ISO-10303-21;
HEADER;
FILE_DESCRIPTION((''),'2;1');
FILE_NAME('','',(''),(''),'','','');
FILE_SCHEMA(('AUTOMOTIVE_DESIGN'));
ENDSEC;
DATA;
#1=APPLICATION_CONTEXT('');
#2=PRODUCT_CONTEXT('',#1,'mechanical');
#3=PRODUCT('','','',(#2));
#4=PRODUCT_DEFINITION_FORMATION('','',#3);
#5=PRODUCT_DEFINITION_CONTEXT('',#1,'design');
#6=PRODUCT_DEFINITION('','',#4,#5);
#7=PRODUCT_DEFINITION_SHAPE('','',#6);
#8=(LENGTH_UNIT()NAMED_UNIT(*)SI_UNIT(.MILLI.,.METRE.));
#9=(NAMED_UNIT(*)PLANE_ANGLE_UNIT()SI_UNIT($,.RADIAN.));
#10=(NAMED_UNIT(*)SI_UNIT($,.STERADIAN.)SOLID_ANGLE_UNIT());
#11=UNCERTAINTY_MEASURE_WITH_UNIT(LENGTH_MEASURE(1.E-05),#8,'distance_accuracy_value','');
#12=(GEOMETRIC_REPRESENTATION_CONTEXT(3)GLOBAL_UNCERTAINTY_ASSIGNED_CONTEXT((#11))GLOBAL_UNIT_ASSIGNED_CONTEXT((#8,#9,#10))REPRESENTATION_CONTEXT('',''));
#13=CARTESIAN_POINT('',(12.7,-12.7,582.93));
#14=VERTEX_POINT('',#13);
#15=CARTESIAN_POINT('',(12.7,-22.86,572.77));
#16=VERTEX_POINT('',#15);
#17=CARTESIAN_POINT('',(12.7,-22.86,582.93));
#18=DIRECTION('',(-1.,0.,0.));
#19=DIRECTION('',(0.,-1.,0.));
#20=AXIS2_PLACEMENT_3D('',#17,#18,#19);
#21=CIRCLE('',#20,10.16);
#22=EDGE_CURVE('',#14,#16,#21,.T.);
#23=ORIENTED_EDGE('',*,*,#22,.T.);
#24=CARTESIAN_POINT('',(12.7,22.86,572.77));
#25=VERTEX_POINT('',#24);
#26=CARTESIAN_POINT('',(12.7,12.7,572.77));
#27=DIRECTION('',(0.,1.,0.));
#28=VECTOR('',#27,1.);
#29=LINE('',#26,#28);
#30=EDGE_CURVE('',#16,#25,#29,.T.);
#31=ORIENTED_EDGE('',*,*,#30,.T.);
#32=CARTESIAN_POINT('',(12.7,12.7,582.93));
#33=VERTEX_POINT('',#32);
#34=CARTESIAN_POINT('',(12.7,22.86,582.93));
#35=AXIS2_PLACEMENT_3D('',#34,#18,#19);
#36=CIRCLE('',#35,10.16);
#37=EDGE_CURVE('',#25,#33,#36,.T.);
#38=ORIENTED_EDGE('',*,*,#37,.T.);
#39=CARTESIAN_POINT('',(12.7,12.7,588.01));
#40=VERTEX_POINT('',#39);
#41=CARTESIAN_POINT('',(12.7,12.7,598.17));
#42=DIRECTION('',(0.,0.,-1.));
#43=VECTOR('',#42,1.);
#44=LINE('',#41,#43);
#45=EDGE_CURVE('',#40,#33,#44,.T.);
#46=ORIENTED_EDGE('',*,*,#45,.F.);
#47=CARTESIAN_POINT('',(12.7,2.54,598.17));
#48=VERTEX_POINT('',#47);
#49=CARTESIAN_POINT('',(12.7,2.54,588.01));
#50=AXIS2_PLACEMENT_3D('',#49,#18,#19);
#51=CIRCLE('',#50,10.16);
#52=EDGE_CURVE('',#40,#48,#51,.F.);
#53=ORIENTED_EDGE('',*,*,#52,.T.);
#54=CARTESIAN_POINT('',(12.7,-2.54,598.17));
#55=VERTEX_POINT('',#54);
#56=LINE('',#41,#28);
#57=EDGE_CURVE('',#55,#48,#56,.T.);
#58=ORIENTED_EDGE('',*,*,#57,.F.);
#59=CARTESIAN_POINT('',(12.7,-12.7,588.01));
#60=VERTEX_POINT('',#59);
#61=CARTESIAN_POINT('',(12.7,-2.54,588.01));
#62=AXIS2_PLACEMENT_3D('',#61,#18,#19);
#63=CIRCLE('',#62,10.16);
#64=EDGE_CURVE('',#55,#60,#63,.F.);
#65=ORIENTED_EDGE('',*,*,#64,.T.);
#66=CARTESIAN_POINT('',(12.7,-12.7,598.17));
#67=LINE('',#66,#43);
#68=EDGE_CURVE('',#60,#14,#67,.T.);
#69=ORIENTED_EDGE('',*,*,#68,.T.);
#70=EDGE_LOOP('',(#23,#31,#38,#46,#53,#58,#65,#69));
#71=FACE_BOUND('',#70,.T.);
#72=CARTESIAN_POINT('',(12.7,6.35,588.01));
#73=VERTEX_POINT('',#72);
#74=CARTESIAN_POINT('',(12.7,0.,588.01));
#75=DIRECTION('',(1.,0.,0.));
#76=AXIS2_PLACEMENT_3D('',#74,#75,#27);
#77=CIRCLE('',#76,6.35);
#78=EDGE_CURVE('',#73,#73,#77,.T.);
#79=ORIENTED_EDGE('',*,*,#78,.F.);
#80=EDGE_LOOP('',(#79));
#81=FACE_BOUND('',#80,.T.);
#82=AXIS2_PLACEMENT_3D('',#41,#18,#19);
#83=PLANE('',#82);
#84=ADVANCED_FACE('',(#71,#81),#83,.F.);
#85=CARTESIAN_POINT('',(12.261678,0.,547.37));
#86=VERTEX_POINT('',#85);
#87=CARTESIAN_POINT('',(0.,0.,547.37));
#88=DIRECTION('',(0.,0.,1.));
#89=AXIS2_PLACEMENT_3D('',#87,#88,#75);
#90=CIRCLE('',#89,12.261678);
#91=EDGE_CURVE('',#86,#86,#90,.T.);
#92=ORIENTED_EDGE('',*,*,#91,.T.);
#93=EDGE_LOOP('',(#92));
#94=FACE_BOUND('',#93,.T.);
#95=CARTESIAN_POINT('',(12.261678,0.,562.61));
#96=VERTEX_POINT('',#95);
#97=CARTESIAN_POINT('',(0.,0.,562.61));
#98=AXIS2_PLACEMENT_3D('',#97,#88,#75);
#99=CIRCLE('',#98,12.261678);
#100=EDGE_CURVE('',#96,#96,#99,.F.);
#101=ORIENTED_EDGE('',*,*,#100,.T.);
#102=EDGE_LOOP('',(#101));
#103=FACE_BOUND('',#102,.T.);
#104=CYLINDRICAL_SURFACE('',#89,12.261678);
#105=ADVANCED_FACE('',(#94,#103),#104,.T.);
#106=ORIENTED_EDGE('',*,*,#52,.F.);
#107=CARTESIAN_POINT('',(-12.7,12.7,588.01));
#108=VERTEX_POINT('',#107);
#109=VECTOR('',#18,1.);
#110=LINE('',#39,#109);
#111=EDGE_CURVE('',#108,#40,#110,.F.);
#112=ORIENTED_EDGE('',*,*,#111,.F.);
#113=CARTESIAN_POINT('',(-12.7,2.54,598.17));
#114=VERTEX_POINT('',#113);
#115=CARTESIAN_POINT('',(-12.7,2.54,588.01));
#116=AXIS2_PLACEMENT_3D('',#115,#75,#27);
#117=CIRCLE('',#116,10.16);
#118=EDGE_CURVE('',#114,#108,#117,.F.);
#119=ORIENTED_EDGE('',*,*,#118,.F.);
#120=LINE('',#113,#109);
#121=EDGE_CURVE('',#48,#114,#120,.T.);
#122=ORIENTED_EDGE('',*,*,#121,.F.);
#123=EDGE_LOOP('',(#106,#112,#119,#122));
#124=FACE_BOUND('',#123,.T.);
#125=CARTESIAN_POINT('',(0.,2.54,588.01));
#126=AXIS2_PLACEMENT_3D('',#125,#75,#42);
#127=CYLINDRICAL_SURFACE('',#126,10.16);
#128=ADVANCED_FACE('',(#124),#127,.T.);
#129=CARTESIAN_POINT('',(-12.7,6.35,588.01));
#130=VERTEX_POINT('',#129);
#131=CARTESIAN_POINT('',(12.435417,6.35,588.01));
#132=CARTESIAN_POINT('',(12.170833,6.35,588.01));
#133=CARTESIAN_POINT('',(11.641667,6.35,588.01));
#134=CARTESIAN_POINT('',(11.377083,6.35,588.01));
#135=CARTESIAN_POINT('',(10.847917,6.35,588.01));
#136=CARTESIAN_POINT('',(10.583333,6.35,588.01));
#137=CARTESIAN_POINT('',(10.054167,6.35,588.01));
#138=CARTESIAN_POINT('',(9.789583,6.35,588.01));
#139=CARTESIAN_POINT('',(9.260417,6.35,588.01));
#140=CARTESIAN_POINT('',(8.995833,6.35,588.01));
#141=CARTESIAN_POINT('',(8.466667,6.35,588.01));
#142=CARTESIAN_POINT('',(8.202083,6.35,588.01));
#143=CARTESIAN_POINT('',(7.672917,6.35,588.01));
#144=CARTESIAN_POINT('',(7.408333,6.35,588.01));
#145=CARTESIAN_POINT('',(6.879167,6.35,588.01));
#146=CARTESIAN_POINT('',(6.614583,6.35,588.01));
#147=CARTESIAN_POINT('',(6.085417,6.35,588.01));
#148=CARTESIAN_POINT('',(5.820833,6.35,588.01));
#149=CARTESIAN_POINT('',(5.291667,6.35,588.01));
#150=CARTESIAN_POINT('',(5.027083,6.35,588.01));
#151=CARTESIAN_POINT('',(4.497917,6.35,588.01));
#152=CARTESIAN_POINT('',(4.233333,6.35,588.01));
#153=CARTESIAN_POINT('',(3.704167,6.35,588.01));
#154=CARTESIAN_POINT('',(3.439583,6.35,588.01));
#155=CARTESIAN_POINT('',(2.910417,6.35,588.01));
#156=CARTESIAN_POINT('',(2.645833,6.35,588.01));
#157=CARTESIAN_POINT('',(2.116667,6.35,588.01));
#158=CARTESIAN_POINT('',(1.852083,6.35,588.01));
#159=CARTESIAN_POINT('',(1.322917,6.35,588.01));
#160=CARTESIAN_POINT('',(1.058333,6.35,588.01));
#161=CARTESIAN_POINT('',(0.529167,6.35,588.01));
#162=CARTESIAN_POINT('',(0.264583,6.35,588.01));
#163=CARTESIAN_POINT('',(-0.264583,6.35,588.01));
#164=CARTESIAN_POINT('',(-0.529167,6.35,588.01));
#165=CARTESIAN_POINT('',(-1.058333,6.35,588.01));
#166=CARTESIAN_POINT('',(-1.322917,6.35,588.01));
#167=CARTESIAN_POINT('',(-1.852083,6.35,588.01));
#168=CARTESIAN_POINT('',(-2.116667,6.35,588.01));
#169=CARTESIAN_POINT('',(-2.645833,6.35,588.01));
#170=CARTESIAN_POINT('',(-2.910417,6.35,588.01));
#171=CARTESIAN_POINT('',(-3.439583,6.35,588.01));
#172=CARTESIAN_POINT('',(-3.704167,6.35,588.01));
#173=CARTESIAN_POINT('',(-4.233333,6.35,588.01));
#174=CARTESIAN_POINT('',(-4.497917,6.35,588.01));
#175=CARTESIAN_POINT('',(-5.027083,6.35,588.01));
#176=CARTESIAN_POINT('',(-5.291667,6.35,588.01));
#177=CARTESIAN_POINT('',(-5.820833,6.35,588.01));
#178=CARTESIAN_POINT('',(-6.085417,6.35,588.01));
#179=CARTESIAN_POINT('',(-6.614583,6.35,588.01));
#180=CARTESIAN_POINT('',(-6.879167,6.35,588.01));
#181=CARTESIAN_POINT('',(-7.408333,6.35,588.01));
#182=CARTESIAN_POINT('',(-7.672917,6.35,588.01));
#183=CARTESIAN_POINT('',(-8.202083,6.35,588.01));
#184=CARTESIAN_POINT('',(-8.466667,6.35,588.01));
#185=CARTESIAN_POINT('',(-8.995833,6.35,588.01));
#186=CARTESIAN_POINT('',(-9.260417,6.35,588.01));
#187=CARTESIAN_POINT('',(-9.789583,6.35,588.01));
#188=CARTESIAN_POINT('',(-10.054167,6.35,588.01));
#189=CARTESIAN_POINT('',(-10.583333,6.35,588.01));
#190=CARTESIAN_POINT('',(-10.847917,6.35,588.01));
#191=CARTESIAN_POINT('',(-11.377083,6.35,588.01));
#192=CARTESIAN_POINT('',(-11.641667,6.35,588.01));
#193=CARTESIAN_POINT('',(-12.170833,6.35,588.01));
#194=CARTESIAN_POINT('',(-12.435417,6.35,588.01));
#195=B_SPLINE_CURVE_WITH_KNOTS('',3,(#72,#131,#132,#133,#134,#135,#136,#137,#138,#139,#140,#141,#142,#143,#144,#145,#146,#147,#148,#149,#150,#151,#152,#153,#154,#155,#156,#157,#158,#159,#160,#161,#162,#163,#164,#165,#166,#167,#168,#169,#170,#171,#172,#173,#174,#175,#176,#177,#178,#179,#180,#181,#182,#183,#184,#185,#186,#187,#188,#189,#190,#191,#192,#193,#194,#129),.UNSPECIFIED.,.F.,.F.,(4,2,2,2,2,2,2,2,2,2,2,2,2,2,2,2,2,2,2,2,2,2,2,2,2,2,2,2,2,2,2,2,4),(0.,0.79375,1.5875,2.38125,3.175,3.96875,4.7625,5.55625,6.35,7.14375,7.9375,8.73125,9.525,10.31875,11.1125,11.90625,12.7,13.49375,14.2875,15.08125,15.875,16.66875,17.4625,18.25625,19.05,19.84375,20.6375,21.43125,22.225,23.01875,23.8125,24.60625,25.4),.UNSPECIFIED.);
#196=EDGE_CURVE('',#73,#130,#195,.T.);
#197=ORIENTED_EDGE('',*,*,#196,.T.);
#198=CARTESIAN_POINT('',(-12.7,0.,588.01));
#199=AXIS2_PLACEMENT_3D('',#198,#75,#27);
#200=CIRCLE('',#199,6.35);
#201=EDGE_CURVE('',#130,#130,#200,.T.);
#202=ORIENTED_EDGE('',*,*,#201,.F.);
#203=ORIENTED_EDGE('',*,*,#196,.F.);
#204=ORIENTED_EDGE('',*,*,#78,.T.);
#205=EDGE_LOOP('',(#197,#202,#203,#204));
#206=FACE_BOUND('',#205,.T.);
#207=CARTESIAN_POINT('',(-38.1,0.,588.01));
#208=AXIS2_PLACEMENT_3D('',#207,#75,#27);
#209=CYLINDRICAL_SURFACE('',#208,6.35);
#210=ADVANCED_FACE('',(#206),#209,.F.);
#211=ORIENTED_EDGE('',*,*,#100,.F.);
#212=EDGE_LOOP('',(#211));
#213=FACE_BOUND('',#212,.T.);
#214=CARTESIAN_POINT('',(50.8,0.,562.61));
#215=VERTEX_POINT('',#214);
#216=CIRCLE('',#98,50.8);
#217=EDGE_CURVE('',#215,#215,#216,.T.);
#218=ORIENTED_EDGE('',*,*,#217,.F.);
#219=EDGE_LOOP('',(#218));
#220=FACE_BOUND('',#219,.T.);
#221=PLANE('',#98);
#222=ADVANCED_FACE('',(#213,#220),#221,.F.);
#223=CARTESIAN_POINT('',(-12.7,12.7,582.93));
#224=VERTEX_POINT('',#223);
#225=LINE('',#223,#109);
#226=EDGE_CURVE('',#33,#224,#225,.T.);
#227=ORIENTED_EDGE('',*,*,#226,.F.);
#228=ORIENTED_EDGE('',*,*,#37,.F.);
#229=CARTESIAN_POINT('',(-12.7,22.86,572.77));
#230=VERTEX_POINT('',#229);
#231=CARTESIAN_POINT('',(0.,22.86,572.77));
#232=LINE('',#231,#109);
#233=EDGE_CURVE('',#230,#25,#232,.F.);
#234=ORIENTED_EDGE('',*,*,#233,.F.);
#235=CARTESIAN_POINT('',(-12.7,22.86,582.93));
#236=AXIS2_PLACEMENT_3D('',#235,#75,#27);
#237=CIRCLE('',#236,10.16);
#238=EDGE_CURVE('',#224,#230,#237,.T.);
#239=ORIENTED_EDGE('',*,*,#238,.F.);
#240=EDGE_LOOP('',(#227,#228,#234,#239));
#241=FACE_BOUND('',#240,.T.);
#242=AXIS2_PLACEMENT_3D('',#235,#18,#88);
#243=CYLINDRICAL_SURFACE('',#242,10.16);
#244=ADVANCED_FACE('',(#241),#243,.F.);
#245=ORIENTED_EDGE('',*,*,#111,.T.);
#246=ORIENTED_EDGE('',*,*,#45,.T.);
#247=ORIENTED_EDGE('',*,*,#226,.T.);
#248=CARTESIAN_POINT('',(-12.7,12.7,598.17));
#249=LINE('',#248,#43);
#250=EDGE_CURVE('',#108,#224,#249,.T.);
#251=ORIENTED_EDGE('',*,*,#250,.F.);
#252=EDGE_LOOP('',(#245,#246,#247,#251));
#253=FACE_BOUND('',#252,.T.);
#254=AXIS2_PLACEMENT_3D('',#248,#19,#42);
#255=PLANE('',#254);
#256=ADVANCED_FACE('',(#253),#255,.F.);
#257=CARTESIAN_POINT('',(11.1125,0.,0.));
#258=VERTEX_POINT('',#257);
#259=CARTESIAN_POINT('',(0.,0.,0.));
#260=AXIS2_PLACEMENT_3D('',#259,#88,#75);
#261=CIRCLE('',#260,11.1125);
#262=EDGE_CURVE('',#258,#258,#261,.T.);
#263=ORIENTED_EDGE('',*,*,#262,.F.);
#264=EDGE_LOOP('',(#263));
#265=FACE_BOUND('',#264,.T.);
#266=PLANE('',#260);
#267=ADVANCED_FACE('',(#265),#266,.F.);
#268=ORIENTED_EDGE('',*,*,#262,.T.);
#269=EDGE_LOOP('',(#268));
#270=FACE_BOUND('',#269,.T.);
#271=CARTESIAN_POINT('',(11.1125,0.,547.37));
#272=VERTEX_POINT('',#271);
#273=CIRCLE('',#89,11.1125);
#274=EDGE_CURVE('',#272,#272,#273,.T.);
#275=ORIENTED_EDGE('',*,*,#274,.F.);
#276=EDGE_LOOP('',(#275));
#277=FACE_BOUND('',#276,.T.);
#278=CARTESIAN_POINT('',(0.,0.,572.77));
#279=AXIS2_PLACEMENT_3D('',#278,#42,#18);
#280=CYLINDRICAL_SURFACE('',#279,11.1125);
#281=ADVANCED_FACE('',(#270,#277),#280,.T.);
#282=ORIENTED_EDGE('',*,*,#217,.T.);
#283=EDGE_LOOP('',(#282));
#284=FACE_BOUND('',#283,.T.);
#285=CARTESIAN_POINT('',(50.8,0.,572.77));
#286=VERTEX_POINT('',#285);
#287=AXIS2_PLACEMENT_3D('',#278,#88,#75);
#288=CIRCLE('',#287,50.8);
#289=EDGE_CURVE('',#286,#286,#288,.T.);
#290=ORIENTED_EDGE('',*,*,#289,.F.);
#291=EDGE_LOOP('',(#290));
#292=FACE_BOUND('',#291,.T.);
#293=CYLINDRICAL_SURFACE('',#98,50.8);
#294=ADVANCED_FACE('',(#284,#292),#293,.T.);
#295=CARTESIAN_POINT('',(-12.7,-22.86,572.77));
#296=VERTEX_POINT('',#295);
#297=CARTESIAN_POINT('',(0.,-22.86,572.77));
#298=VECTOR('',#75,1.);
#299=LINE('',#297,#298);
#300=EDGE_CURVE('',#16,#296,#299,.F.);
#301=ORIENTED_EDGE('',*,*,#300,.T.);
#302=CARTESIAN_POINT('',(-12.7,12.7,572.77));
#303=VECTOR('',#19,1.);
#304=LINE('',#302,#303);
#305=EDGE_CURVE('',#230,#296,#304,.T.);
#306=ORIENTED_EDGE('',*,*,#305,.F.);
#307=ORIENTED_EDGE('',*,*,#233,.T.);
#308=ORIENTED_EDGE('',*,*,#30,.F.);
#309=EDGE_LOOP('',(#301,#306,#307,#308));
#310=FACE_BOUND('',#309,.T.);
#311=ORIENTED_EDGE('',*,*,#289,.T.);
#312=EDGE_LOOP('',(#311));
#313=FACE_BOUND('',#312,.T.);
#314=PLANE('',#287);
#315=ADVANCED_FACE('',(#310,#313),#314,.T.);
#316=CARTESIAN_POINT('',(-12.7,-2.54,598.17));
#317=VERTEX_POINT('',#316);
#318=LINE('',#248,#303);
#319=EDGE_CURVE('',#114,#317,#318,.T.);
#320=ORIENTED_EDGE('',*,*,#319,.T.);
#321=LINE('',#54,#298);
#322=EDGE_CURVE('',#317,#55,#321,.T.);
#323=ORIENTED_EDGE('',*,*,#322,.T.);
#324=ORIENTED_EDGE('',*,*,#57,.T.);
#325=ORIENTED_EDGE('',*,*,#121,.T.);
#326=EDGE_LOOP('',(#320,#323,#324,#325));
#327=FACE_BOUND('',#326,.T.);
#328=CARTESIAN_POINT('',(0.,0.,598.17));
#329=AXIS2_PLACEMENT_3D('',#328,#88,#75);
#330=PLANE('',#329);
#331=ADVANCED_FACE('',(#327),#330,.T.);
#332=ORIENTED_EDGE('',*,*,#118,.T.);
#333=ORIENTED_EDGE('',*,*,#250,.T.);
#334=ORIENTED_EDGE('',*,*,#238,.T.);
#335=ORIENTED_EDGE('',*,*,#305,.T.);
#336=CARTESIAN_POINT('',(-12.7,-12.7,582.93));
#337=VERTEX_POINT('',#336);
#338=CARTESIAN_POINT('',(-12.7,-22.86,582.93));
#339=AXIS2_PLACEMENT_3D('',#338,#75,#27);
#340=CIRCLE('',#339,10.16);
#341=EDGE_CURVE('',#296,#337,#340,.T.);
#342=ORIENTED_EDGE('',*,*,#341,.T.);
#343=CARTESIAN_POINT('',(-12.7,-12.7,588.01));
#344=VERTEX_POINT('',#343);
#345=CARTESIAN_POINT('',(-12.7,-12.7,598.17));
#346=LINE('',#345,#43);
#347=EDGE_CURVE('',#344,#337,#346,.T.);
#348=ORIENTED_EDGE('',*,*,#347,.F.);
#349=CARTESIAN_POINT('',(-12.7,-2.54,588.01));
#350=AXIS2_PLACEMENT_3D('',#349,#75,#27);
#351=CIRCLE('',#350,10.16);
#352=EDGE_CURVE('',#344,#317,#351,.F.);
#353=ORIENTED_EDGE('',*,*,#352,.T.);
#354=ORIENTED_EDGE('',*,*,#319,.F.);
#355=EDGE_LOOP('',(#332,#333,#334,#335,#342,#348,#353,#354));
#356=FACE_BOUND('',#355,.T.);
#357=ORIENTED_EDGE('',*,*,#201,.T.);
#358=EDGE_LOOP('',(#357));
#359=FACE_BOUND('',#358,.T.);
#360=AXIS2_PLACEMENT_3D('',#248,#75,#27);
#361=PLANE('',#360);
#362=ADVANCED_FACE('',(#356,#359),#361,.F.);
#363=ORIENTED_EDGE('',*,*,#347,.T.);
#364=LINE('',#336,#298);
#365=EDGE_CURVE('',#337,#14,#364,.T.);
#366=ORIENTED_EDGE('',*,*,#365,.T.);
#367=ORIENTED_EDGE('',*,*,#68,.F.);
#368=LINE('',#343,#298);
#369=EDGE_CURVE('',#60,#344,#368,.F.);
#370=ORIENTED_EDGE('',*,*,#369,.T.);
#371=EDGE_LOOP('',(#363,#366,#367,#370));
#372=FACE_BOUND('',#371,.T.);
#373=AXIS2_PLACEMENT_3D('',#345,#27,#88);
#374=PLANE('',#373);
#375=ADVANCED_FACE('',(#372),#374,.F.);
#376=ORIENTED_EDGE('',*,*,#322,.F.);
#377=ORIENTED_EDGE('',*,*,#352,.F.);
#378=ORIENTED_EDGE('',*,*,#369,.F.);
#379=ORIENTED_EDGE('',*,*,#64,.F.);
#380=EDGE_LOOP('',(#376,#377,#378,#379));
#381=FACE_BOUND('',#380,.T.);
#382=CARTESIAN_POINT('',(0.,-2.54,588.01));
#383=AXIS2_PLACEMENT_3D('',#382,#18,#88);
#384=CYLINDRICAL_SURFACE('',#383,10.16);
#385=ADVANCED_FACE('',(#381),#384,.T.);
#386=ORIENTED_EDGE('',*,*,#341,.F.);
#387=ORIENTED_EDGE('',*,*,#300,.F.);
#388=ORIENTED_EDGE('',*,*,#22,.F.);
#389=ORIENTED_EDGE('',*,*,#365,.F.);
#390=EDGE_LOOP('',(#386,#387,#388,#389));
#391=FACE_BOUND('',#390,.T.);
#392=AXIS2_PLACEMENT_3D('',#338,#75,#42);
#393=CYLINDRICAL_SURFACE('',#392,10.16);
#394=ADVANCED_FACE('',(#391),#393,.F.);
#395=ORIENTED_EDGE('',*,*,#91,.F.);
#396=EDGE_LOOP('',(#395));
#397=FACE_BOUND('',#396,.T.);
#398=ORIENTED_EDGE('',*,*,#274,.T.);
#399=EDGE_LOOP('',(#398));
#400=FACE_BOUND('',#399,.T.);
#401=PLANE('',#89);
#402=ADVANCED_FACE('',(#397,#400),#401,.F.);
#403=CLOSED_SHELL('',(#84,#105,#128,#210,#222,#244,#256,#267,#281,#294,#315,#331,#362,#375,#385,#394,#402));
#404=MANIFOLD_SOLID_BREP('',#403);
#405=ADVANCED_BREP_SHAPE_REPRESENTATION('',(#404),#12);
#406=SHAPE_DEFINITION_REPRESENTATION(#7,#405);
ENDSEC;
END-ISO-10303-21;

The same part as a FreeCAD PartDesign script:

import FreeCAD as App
import Part
import Sketcher

V = App.Vector
Q = App.Units.Quantity


def edges_at(feature, points):
    """Names of the edges that pass closest to the given points."""
    edges = feature.Shape.Edges
    near = lambda p: min(range(len(edges)), key=lambda i: edges[i].distToShape(Part.Vertex(*p))[0])
    return sorted({f"Edge{near(p) + 1}" for p in points})

doc = App.newDocument("Part")
params = doc.addObject("Spreadsheet::Sheet", "Params")
for row, (alias, value) in enumerate([
    ("sketch1_diameter", "0.875 in"),
    ("pad1_length", "22.55 in"),
    ("sketch2_diameter", "0.875 in"),
    ("pad2_length", "1 in"),
    ("sketch3_width", "1 in"),
    ("pad3_length", "1 in"),
    ("sketch4_diameter", "0.5 in"),
    ("pocket1_length", "2 in"),
    ("sketch5_diameter", "4 in"),
    ("pad4_length", "0.4 in"),
    ("fillet_radius", "0.4 in"),
], start=1):
    params.set(f"A{row}", alias)
    params.set(f"B{row}", "=" + value)
    params.setAlias(f"B{row}", alias)

body = doc.addObject("PartDesign::Body", "Body")

# Sketch on XY plane
sketch1 = body.newObject("Sketcher::SketchObject", "Sketch")
sketch1.AttachmentSupport = (doc.getObject("XY_Plane"), [""])
sketch1.MapMode = "FlatFace"
sketch1.addGeometry(Part.Circle(V(0, 0, 0), V(0, 0, 1), 11), False)
sketch1.addConstraint(Sketcher.Constraint("Coincident", 0, 3, -1, 1))
sketch1.addConstraint(Sketcher.Constraint("Diameter", 0, Q("0.875 in")))
sketch1.setExpression("Constraints[1]", "Params.sketch1_diameter")
pad1 = body.newObject("PartDesign::Pad", "Pad")
pad1.Profile = sketch1
pad1.setExpression("Length", "Params.pad1_length")

# Sketch on XY plane
sketch2 = body.newObject("Sketcher::SketchObject", "Sketch001")
sketch2.AttachmentSupport = (doc.getObject("XY_Plane"), [""])
sketch2.MapMode = "FlatFace"
sketch2.AttachmentOffset = App.Placement(V(0, 0, 21.55 * 25.4), App.Rotation())
sketch2.addGeometry(Part.Circle(V(0, 0, 0), V(0, 0, 1), 12), False)
sketch2.addGeometry(Part.Circle(V(0, 0, 0), V(0, 0, 1), 11), False)
sketch2.addConstraint(Sketcher.Constraint("Coincident", 0, 3, -1, 1))
sketch2.addConstraint(Sketcher.Constraint("Coincident", 1, 3, -1, 1))
sketch2.addConstraint(Sketcher.Constraint("Diameter", 1, Q("0.875 in")))
sketch2.addConstraint(Sketcher.Constraint("Diameter", 0, 24.523356))
sketch2.setExpression("Constraints[2]", "Params.sketch2_diameter")
pad2 = body.newObject("PartDesign::Pad", "Pad001")
pad2.Profile = sketch2
pad2.setExpression("Length", "Params.pad2_length")

# Sketch on XY plane
sketch3 = body.newObject("Sketcher::SketchObject", "Sketch002")
sketch3.AttachmentSupport = (doc.getObject("XY_Plane"), [""])
sketch3.MapMode = "FlatFace"
sketch3.AttachmentOffset = App.Placement(V(0, 0, 22.55 * 25.4), App.Rotation())
sketch3.addGeometry(Part.LineSegment(V(-13, 13, 0), V(-13, -13, 0)), False)
sketch3.addGeometry(Part.LineSegment(V(-13, -13, 0), V(13, -13, 0)), False)
sketch3.addGeometry(Part.LineSegment(V(13, -13, 0), V(13, 13, 0)), False)
sketch3.addGeometry(Part.LineSegment(V(13, 13, 0), V(-13, 13, 0)), False)
sketch3.addConstraint(Sketcher.Constraint("Coincident", 0, 2, 1, 1))
sketch3.addConstraint(Sketcher.Constraint("Coincident", 1, 2, 2, 1))
sketch3.addConstraint(Sketcher.Constraint("Coincident", 2, 2, 3, 1))
sketch3.addConstraint(Sketcher.Constraint("Coincident", 3, 2, 0, 1))
sketch3.addConstraint(Sketcher.Constraint("Vertical", 0))
sketch3.addConstraint(Sketcher.Constraint("Horizontal", 1))
sketch3.addConstraint(Sketcher.Constraint("Vertical", 2))
sketch3.addConstraint(Sketcher.Constraint("Horizontal", 3))
sketch3.addConstraint(Sketcher.Constraint("Symmetric", 0, 2, 2, 2, -1, 1))
sketch3.addConstraint(Sketcher.Constraint("Equal", 3, 0))
sketch3.addConstraint(Sketcher.Constraint("DistanceX", 1, 1, 1, 2, Q("1 in")))
sketch3.setExpression("Constraints[10]", "Params.sketch3_width")
pad3 = body.newObject("PartDesign::Pad", "Pad002")
pad3.Profile = sketch3
pad3.setExpression("Length", "Params.pad3_length")

# Sketch on YZ plane
sketch4 = body.newObject("Sketcher::SketchObject", "Sketch003")
sketch4.AttachmentSupport = (doc.getObject("YZ_Plane"), [""])
sketch4.MapMode = "FlatFace"
sketch4.AttachmentOffset = App.Placement(V(0, 0, 0.5 * 25.4), App.Rotation())
sketch4.addGeometry(Part.Circle(V(0, 588, 0), V(0, 0, 1), 6), False)
sketch4.addConstraint(Sketcher.Constraint("PointOnObject", 0, 3, -2))
sketch4.addConstraint(Sketcher.Constraint("Diameter", 0, Q("0.5 in")))
sketch4.addConstraint(Sketcher.Constraint("DistanceY", -1, 1, 0, 3, Q("23.15 in")))
sketch4.setExpression("Constraints[1]", "Params.sketch4_diameter")
pocket1 = body.newObject("PartDesign::Pocket", "Pocket")
pocket1.Profile = sketch4
pocket1.setExpression("Length", "Params.pocket1_length")

# Sketch on XY plane
sketch5 = body.newObject("Sketcher::SketchObject", "Sketch004")
sketch5.AttachmentSupport = (doc.getObject("XY_Plane"), [""])
sketch5.MapMode = "FlatFace"
sketch5.AttachmentOffset = App.Placement(V(0, 0, 22.55 * 25.4), App.Rotation())
sketch5.addGeometry(Part.Circle(V(0, 0, 0), V(0, 0, 1), 51), False)
sketch5.addConstraint(Sketcher.Constraint("Coincident", 0, 3, -1, 1))
sketch5.addConstraint(Sketcher.Constraint("Diameter", 0, Q("4 in")))
sketch5.setExpression("Constraints[1]", "Params.sketch5_diameter")
pad4 = body.newObject("PartDesign::Pad", "Pad003")
pad4.Profile = sketch5
pad4.setExpression("Length", "Params.pad4_length")
pad4.Reversed = True
doc.recompute()

fillet = body.newObject("PartDesign::Fillet", "Fillet")
fillet.Base = (pad4, edges_at(pad4, [
    (0, 12.7, 572.77),
    (0, -12.7, 572.77),
    (0, 12.7, 598.17),
    (0, -12.7, 598.17),
]))
fillet.setExpression("Radius", "Params.fillet_radius")

doc.recompute()
